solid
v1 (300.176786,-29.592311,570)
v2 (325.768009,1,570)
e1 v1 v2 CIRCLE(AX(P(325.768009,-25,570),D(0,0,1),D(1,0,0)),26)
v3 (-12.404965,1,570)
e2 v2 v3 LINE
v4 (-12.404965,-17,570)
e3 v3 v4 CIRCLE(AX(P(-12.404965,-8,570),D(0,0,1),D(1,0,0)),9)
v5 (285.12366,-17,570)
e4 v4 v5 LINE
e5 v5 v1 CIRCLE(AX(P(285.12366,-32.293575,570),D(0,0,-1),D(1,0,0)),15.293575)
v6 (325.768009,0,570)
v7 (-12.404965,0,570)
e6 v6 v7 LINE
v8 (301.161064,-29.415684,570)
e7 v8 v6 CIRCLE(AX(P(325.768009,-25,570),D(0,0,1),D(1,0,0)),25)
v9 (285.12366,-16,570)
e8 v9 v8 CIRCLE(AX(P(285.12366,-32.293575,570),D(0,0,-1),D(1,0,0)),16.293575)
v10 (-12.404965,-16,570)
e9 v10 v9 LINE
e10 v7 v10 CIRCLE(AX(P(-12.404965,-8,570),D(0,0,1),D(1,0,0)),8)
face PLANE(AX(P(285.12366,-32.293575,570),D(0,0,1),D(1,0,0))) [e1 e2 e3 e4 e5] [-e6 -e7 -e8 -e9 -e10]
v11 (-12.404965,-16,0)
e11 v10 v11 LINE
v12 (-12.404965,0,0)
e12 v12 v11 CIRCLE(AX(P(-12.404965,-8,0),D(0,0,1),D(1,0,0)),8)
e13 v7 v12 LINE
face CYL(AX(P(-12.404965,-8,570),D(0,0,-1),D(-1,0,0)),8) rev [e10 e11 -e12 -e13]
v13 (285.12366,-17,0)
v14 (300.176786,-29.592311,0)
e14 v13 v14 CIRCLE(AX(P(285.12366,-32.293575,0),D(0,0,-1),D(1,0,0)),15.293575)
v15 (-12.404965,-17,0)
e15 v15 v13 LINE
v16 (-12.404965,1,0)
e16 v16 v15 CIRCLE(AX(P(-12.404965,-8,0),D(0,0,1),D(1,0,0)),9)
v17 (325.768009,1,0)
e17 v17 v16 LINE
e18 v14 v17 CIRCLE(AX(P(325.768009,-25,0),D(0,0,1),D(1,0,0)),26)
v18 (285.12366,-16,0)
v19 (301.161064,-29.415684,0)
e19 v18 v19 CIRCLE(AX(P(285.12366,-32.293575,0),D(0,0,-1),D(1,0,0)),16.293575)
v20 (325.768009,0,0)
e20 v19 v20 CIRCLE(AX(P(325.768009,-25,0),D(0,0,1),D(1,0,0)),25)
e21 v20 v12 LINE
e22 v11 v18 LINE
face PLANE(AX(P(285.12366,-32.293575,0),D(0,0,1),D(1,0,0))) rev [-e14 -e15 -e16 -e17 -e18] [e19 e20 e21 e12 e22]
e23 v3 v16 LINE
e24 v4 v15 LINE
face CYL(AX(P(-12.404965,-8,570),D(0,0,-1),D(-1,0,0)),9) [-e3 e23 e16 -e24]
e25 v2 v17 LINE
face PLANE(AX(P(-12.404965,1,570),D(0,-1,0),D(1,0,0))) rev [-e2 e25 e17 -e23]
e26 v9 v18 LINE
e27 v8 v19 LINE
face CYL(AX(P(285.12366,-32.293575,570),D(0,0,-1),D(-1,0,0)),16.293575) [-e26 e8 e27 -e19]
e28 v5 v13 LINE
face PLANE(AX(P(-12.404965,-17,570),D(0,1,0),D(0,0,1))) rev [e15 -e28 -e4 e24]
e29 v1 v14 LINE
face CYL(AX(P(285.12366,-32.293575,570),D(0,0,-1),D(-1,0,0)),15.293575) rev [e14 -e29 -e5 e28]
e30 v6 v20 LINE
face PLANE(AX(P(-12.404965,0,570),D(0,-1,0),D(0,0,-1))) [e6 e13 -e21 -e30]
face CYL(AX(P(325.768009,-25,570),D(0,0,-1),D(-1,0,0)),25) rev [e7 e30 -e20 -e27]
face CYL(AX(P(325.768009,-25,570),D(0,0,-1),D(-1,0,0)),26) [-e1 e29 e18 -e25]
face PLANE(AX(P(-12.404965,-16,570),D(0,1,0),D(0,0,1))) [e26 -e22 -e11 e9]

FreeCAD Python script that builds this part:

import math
import FreeCAD as App
import Part
import Sketcher
from FreeCAD import Vector

doc = App.newDocument("Part")
body = doc.addObject("PartDesign::Body", "Body")

# Sketch on XY plane
sketch1 = body.newObject("Sketcher::SketchObject", "Sketch")
sketch1.AttachmentSupport = (doc.getObject("XY_Plane"), [""])
sketch1.MapMode = "FlatFace"
sketch1.addGeometry([
    Part.LineSegment(Vector(325.768009, 1, 0), Vector(-12.404965, 1, 0)),  # 0
    Part.ArcOfCircle(Part.Circle(Vector(-12.404965, -8, 0), Vector(0, 0, 1), 9), math.radians(90), math.radians(270)),  # 1
    Part.LineSegment(Vector(-12.404965, -17, 0), Vector(285.12366, -17, 0)),  # 2
    Part.ArcOfCircle(Part.Circle(Vector(285.12366, -32.293575, 0), Vector(0, 0, 1), 15.293575), math.radians(10.173374), math.radians(90)),  # 3
    Part.ArcOfCircle(Part.Circle(Vector(325.768009, -25, 0), Vector(0, 0, 1), 26), math.radians(-169.826626), math.radians(90)),  # 4
    Part.LineSegment(Vector(-12.404965, 0, 0), Vector(325.768009, 0, 0)),  # 5
    Part.ArcOfCircle(Part.Circle(Vector(325.768009, -25, 0), Vector(0, 0, 1), 25), math.radians(-169.826626), math.radians(90)),  # 6
    Part.ArcOfCircle(Part.Circle(Vector(285.12366, -32.293575, 0), Vector(0, 0, 1), 16.293575), math.radians(10.173374), math.radians(90)),  # 7
    Part.LineSegment(Vector(285.12366, -16, 0), Vector(-12.404965, -16, 0)),  # 8
    Part.ArcOfCircle(Part.Circle(Vector(-12.404965, -8, 0), Vector(0, 0, 1), 8), math.radians(90), math.radians(270)),  # 9
], False)
sketch1.addConstraint([
    Sketcher.Constraint("Tangent", 0, 2, 1, 1),
    Sketcher.Constraint("Tangent", 1, 2, 2, 1),
    Sketcher.Constraint("Tangent", 2, 2, 3, 2),
    Sketcher.Constraint("Tangent", 3, 1, 4, 1),
    Sketcher.Constraint("Tangent", 4, 2, 0, 1),
    Sketcher.Constraint("Tangent", 5, 2, 6, 2),
    Sketcher.Constraint("Tangent", 6, 1, 7, 1),
    Sketcher.Constraint("Tangent", 7, 2, 8, 1),
    Sketcher.Constraint("Tangent", 8, 2, 9, 2),
    Sketcher.Constraint("Tangent", 9, 1, 5, 1),
    Sketcher.Constraint("Horizontal", 0),
    Sketcher.Constraint("Horizontal", 2),
    Sketcher.Constraint("Horizontal", 5),
    Sketcher.Constraint("Horizontal", 8),
    Sketcher.Constraint("Coincident", 6, 3, 4, 3),
    Sketcher.Constraint("Coincident", 7, 3, 3, 3),
    Sketcher.Constraint("PointOnObject", 5, 2, -1),
    Sketcher.Constraint("Vertical", 9, 3, 0, 2),
    Sketcher.Constraint("Radius", 1, 9.0),
    Sketcher.Constraint("Radius", 4, 26.0),
    Sketcher.Constraint("Radius", 6, 25.0),
    Sketcher.Constraint("Radius", 3, 15.293575),
    Sketcher.Constraint("DistanceX", 0, 2, 0, 1, 338.172973),
    Sketcher.Constraint("DistanceX", -1, 1, 3, 3, 285.12366),
])
pad1 = body.newObject("PartDesign::Pad", "Pad")
pad1.Profile = sketch1
pad1.Length = 570

doc.recompute()
